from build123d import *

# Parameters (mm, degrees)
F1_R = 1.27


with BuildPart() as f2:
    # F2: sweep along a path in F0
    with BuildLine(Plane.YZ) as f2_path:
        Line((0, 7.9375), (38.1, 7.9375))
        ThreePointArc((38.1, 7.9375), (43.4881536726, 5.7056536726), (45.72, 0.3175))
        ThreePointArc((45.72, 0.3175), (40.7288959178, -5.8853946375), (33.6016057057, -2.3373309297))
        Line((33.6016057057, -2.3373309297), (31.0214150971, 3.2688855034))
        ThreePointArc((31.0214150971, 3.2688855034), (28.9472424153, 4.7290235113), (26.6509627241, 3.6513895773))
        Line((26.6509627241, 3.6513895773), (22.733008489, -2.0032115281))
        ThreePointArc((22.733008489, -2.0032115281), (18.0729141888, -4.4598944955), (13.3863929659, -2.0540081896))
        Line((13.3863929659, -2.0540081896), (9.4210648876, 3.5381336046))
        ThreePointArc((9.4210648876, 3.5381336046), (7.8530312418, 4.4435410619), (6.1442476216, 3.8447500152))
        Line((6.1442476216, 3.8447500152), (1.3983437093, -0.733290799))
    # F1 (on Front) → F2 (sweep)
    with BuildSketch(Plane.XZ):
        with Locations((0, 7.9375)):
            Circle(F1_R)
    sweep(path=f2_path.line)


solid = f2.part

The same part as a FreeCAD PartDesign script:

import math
import FreeCAD as App
import Part
import Sketcher
Q = App.Units.Quantity

doc = App.newDocument("Part")
params = doc.addObject("Spreadsheet::Sheet", "Params")
for row, (alias, value) in enumerate([
    ("sketch1_diameter", "0.1 in"),
    ("sketch2_radius", "0.3 in"),
    ("sketch2_radius2", "0.25 in"),
    ("sketch2_width", "1.5 in"),
], start=1):
    params.set(f"A{row}", alias)
    params.set(f"B{row}", "=" + value)
    params.setAlias(f"B{row}", alias)

body = doc.addObject("PartDesign::Body", "Body")

# Sketch on XZ plane
sketch1 = body.newObject("Sketcher::SketchObject", "Sketch")
sketch1.AttachmentSupport = (doc.getObject("XZ_Plane"), [""])
sketch1.MapMode = "FlatFace"
sketch1.addGeometry(Part.Circle(App.Vector(0, 7.9375, 0), App.Vector(0, 0, 1), 1.27), False)
sketch1.addConstraint([
    Sketcher.Constraint("PointOnObject", 0, 3, -2),
    Sketcher.Constraint("Diameter", 0, Q("0.1 in")),
    Sketcher.Constraint("DistanceY", -1, 1, 0, 3, Q("0.3125 in")),
])
sketch1.setExpression("Constraints[1]", "Params.sketch1_diameter")

# Sketch on YZ plane
sketch2 = body.newObject("Sketcher::SketchObject", "Sketch001")
sketch2.AttachmentSupport = (doc.getObject("YZ_Plane"), [""])
sketch2.MapMode = "FlatFace"
sketch2.addGeometry([
    Part.LineSegment(App.Vector(0, 7.9375, 0), App.Vector(38.1, 7.9375, 0)),  # 0
    Part.ArcOfCircle(Part.Circle(App.Vector(38.1, 0.3175, 0), App.Vector(0, 0, 1), 7.62), math.radians(0), math.radians(90)),  # 1
    Part.ArcOfCircle(Part.Circle(App.Vector(39.37, 0.3175, 0), App.Vector(0, 0, 1), 6.35), math.radians(-155.286343), math.radians(0)),  # 2
    Part.LineSegment(App.Vector(33.601606, -2.337331, 0), App.Vector(31.021415, 3.268886, 0)),  # 3
    Part.ArcOfCircle(Part.Circle(App.Vector(28.727032, 2.212925, 0), App.Vector(0, 0, 1), 2.525717), math.radians(24.713657), math.radians(145.282725)),  # 4
    Part.LineSegment(App.Vector(26.650963, 3.65139, 0), App.Vector(22.733008, -2.003212, 0)),  # 5
    Part.ArcOfCircle(Part.Circle(App.Vector(18.041898, 1.247161, 0), App.Vector(0, 0, 1), 5.707139), math.radians(-144.659953), math.radians(-34.717275)),  # 6
    Part.LineSegment(App.Vector(13.386393, -2.054008, 0), App.Vector(9.421065, 3.538134, 0)),  # 7
    Part.ArcOfCircle(Part.Circle(App.Vector(7.650857, 2.282898, 0), App.Vector(0, 0, 1), 2.170081), math.radians(35.340047), math.radians(133.96859)),  # 8
    Part.LineSegment(App.Vector(6.144248, 3.84475, 0), App.Vector(1.398344, -0.733291, 0)),  # 9
], False)
sketch2.addConstraint([
    Sketcher.Constraint("Tangent", 0, 2, 1, 2),
    Sketcher.Constraint("Tangent", 1, 1, 2, 2),
    Sketcher.Constraint("Tangent", 2, 1, 3, 1),
    Sketcher.Constraint("Tangent", 3, 2, 4, 1),
    Sketcher.Constraint("Tangent", 4, 2, 5, 1),
    Sketcher.Constraint("Tangent", 5, 2, 6, 2),
    Sketcher.Constraint("Tangent", 6, 1, 7, 1),
    Sketcher.Constraint("Tangent", 7, 2, 8, 1),
    Sketcher.Constraint("Tangent", 8, 2, 9, 1),
    Sketcher.Constraint("Horizontal", 0),
    Sketcher.Constraint("PointOnObject", 0, 1, -2),
    Sketcher.Constraint("Horizontal", 1, 3, 2, 3),
    Sketcher.Constraint("Radius", 1, Q("0.3 in")),
    Sketcher.Constraint("Radius", 2, Q("0.25 in")),
    Sketcher.Constraint("DistanceX", 0, 1, 0, 2, Q("1.5 in")),
    Sketcher.Constraint("DistanceY", -1, 1, 0, 1, Q("0.3125 in")),
    Sketcher.Constraint("Radius", 6, Q("5.707139 mm")),
    Sketcher.Constraint("Radius", 8, Q("2.170081 mm")),
    Sketcher.Constraint("DistanceY", 6, 1, 5, 2, Q("0.0019999 in")),
    Sketcher.Constraint("Radius", 4, Q("2.525717 mm")),
    Sketcher.Constraint("DistanceY", 5, 2, 4, 2, Q("5.654601 mm")),
    Sketcher.Constraint("Distance", 3, Q("6.17147 mm")),
    Sketcher.Constraint("Distance", 5, Q("6.879308 mm")),
    Sketcher.Constraint("DistanceY", -1, 1, 6, 3, Q("1.247161 mm")),
    Sketcher.Constraint("DistanceY", -1, 1, 8, 2, Q("3.84475 mm")),
    Sketcher.Constraint("DistanceY", 9, 2, -1, 1, Q("0.733291 mm")),
    Sketcher.Constraint("DistanceX", 8, 3, 6, 3, Q("10.391041 mm")),
])
sketch2.setExpression("Constraints[12]", "Params.sketch2_radius")
sketch2.setExpression("Constraints[13]", "Params.sketch2_radius2")
sketch2.setExpression("Constraints[14]", "Params.sketch2_width")
doc.recompute()

additivepipe = body.newObject("PartDesign::AdditivePipe", "AdditivePipe")
additivepipe.Profile = sketch1
additivepipe.Spine = (sketch2, ["Edge1", "Edge2", "Edge3", "Edge4", "Edge5", "Edge6", "Edge7", "Edge8", "Edge9", "Edge10"])

doc.recompute()
